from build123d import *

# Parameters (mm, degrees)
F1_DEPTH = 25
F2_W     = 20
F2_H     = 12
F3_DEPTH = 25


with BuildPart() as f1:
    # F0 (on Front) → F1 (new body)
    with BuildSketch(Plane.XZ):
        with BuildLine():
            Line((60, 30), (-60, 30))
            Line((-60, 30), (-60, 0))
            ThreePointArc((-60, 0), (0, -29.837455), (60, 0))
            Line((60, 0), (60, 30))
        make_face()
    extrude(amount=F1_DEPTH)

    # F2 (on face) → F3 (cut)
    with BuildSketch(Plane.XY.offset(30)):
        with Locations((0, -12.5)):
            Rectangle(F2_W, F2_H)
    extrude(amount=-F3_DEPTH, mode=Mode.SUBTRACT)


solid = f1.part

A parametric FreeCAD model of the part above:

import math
import FreeCAD as App
import Part
import Sketcher
Q = App.Units.Quantity

doc = App.newDocument("Part")
params = doc.addObject("Spreadsheet::Sheet", "Params")
for row, (alias, value) in enumerate([
    ("sketch1_width", "120 mm"),
    ("sketch1_height", "30 mm"),
    ("pad1_length", "25 mm"),
    ("sketch2_width", "20 mm"),
    ("sketch2_height", "12 mm"),
    ("pocket1_length", "25 mm"),
], start=1):
    params.set(f"A{row}", alias)
    params.set(f"B{row}", "=" + value)
    params.setAlias(f"B{row}", alias)

body = doc.addObject("PartDesign::Body", "Body")

# Sketch on XZ plane
sketch1 = body.newObject("Sketcher::SketchObject", "Sketch")
sketch1.AttachmentSupport = (doc.getObject("XZ_Plane"), [""])
sketch1.MapMode = "FlatFace"
sketch1.addGeometry([
    Part.LineSegment(App.Vector(60, 30, 0), App.Vector(-60, 30, 0)),
    Part.LineSegment(App.Vector(-60, 30, 0), App.Vector(-60, 0, 0)),
    Part.ArcOfCircle(Part.Circle(App.Vector(0, 45, 0), App.Vector(0, 0, 1), 75), math.radians(-143), math.radians(-37)),
    Part.LineSegment(App.Vector(60, 0, 0), App.Vector(60, 30, 0)),
], False)
sketch1.addConstraint([
    Sketcher.Constraint("Coincident", 0, 2, 1, 1),
    Sketcher.Constraint("Coincident", 1, 2, 2, 1),
    Sketcher.Constraint("Coincident", 2, 2, 3, 1),
    Sketcher.Constraint("Coincident", 3, 2, 0, 1),
    Sketcher.Constraint("Horizontal", 0),
    Sketcher.Constraint("Vertical", 1),
    Sketcher.Constraint("Vertical", 3),
    Sketcher.Constraint("Symmetric", 1, 2, 2, 2, -1, 1),
    Sketcher.Constraint("PointOnObject", 2, 3, -2),
    Sketcher.Constraint("DistanceX", 0, 2, 0, 1, Q("120 mm")),
    Sketcher.Constraint("DistanceY", 1, 2, 1, 1, Q("30 mm")),
    Sketcher.Constraint("Radius", 2, Q("75.245588 mm")),
])
sketch1.setExpression("Constraints[9]", "Params.sketch1_width")
sketch1.setExpression("Constraints[10]", "Params.sketch1_height")
pad1 = body.newObject("PartDesign::Pad", "Pad")
pad1.Profile = sketch1
pad1.setExpression("Length", "Params.pad1_length")

# Sketch on XY plane
sketch2 = body.newObject("Sketcher::SketchObject", "Sketch001")
sketch2.AttachmentSupport = (doc.getObject("XY_Plane"), [""])
sketch2.MapMode = "FlatFace"
sketch2.AttachmentOffset = App.Placement(App.Vector(0, 0, 30), App.Rotation())
sketch2.addGeometry([
    Part.LineSegment(App.Vector(-10, -6, 0), App.Vector(-10, -18, 0)),
    Part.LineSegment(App.Vector(-10, -18, 0), App.Vector(10, -18, 0)),
    Part.LineSegment(App.Vector(10, -18, 0), App.Vector(10, -6, 0)),
    Part.LineSegment(App.Vector(10, -6, 0), App.Vector(-10, -6, 0)),
], False)
sketch2.addConstraint([
    Sketcher.Constraint("Coincident", 0, 2, 1, 1),
    Sketcher.Constraint("Coincident", 1, 2, 2, 1),
    Sketcher.Constraint("Coincident", 2, 2, 3, 1),
    Sketcher.Constraint("Coincident", 3, 2, 0, 1),
    Sketcher.Constraint("Vertical", 0),
    Sketcher.Constraint("Horizontal", 1),
    Sketcher.Constraint("Vertical", 2),
    Sketcher.Constraint("Horizontal", 3),
    Sketcher.Constraint("DistanceX", 1, 1, 1, 2, Q("20 mm")),
    Sketcher.Constraint("DistanceY", 0, 2, 0, 1, Q("12 mm")),
    Sketcher.Constraint("DistanceX", 0, 2, -1, 1, Q("10 mm")),
    Sketcher.Constraint("DistanceY", 0, 2, -1, 1, Q("18.5 mm")),
])
sketch2.setExpression("Constraints[8]", "Params.sketch2_width")
sketch2.setExpression("Constraints[9]", "Params.sketch2_height")
pocket1 = body.newObject("PartDesign::Pocket", "Pocket")
pocket1.Profile = sketch2
pocket1.setExpression("Length", "Params.pocket1_length")

doc.recompute()
